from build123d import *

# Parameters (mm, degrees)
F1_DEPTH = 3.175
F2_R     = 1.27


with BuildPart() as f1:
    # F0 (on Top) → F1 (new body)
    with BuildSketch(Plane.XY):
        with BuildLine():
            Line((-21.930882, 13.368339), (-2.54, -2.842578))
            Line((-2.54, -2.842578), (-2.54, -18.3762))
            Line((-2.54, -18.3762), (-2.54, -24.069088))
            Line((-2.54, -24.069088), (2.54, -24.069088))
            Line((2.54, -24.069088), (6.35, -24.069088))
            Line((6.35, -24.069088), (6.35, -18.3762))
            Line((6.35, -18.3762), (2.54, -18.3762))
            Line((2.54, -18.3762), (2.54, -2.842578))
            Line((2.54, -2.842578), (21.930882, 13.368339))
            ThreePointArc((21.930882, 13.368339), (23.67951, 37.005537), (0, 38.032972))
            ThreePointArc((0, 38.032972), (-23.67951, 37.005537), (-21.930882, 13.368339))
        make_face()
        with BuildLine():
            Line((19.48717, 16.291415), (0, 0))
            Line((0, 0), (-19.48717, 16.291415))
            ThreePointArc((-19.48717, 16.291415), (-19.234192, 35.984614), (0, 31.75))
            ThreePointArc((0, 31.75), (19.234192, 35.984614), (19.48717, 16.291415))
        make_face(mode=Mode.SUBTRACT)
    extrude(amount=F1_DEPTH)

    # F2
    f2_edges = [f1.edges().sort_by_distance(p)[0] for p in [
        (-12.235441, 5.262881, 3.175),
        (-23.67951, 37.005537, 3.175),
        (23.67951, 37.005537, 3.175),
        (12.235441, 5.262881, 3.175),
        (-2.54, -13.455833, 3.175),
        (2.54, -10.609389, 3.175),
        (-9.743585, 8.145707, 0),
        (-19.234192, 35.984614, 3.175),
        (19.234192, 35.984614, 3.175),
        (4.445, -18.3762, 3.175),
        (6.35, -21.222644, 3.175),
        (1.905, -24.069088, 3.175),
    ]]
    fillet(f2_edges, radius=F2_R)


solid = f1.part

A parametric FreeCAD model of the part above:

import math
import FreeCAD as App
import Part
import Sketcher
Q = App.Units.Quantity


def edges_at(feature, points):
    """Names of the edges that pass closest to the given points."""
    edges = feature.Shape.Edges
    near = lambda p: min(range(len(edges)), key=lambda i: edges[i].distToShape(Part.Vertex(*p))[0])
    return sorted({f"Edge{near(p) + 1}" for p in points})

doc = App.newDocument("Part")
body = doc.addObject("PartDesign::Body", "Body")

sketch1 = body.newObject("Sketcher::SketchObject", "Sketch")
sketch1.AttachmentSupport = (doc.getObject("XY_Plane"), [""])
sketch1.MapMode = "FlatFace"
sketch1.addGeometry(Part.LineSegment(App.Vector(-21.9, 13.4, 0), App.Vector(-2.5, -2.8, 0)), False)
sketch1.addGeometry(Part.LineSegment(App.Vector(-2.5, -2.8, 0), App.Vector(-2.5, -24.1, 0)), False)
sketch1.addGeometry(Part.LineSegment(App.Vector(-2.5, -24.1, 0), App.Vector(6.3, -24.1, 0)), False)
sketch1.addGeometry(Part.LineSegment(App.Vector(6.3, -24.1, 0), App.Vector(6.3, -18.4, 0)), False)
sketch1.addGeometry(Part.LineSegment(App.Vector(6.3, -18.4, 0), App.Vector(2.5, -18.4, 0)), False)
sketch1.addGeometry(Part.LineSegment(App.Vector(2.5, -18.4, 0), App.Vector(2.5, -2.8, 0)), False)
sketch1.addGeometry(Part.LineSegment(App.Vector(2.5, -2.8, 0), App.Vector(21.9, 13.4, 0)), False)
sketch1.addGeometry(Part.ArcOfCircle(Part.Circle(App.Vector(11.3, 26, 0), App.Vector(0, 0, 1), 16.5), math.radians(-50), math.radians(133)), False)
sketch1.addGeometry(Part.ArcOfCircle(Part.Circle(App.Vector(-11.3, 26, 0), App.Vector(0, 0, 1), 16.5), math.radians(47), math.radians(230)), False)
sketch1.addGeometry(Part.ArcOfCircle(Part.Circle(App.Vector(11.3, 26, 0), App.Vector(0, 0, 1), 12.7), math.radians(-50), math.radians(153)), False)
sketch1.addGeometry(Part.LineSegment(App.Vector(19.5, 16.3, 0), App.Vector(0, 0, 0)), False)
sketch1.addGeometry(Part.LineSegment(App.Vector(0, 0, 0), App.Vector(-19.5, 16.3, 0)), False)
sketch1.addGeometry(Part.ArcOfCircle(Part.Circle(App.Vector(-11.3, 26, 0), App.Vector(0, 0, 1), 12.7), math.radians(27), math.radians(230)), False)
sketch1.addConstraint(Sketcher.Constraint("Coincident", 0, 2, 1, 1))
sketch1.addConstraint(Sketcher.Constraint("Coincident", 1, 2, 2, 1))
sketch1.addConstraint(Sketcher.Constraint("Coincident", 2, 2, 3, 1))
sketch1.addConstraint(Sketcher.Constraint("Coincident", 3, 2, 4, 1))
sketch1.addConstraint(Sketcher.Constraint("Coincident", 4, 2, 5, 1))
sketch1.addConstraint(Sketcher.Constraint("Coincident", 5, 2, 6, 1))
sketch1.addConstraint(Sketcher.Constraint("Tangent", 6, 2, 7, 1))
sketch1.addConstraint(Sketcher.Constraint("Coincident", 7, 2, 8, 1))
sketch1.addConstraint(Sketcher.Constraint("Tangent", 8, 2, 0, 1))
sketch1.addConstraint(Sketcher.Constraint("Tangent", 9, 1, 10, 1))
sketch1.addConstraint(Sketcher.Constraint("Coincident", 10, 2, 11, 1))
sketch1.addConstraint(Sketcher.Constraint("Tangent", 11, 2, 12, 2))
sketch1.addConstraint(Sketcher.Constraint("Coincident", 12, 1, 9, 2))
sketch1.addConstraint(Sketcher.Constraint("Vertical", 1))
sketch1.addConstraint(Sketcher.Constraint("Horizontal", 2))
sketch1.addConstraint(Sketcher.Constraint("Vertical", 3))
sketch1.addConstraint(Sketcher.Constraint("Horizontal", 4))
sketch1.addConstraint(Sketcher.Constraint("Vertical", 5))
sketch1.addConstraint(Sketcher.Constraint("Coincident", 10, 2, -1, 1))
sketch1.addConstraint(Sketcher.Constraint("Coincident", 9, 3, 7, 3))
sketch1.addConstraint(Sketcher.Constraint("Coincident", 12, 3, 8, 3))
sketch1.addConstraint(Sketcher.Constraint("Equal", 7, 8))
sketch1.addConstraint(Sketcher.Constraint("Equal", 9, 12))
sketch1.addConstraint(Sketcher.Constraint("Symmetric", 7, 3, 8, 3, -2))
sketch1.addConstraint(Sketcher.Constraint("Symmetric", 0, 2, 5, 2, -2))
sketch1.addConstraint(Sketcher.Constraint("Parallel", 6, 10))
sketch1.addConstraint(Sketcher.Constraint("Radius", 9, Q("0.5 in")))
sketch1.addConstraint(Sketcher.Constraint("Radius", 7, Q("0.65 in")))
sketch1.addConstraint(Sketcher.Constraint("Distance", 10, Q("1 in")))
sketch1.addConstraint(Sketcher.Constraint("DistanceX", 2, 1, 2, 2, Q("0.35 in")))
sketch1.addConstraint(Sketcher.Constraint("DistanceX", 4, 2, 4, 1, Q("0.15 in")))
sketch1.addConstraint(Sketcher.Constraint("DistanceY", -1, 1, 12, 1, Q("1.25 in")))
sketch1.addConstraint(Sketcher.Constraint("DistanceY", 1, 2, 1, 1, 21.22651))
sketch1.addConstraint(Sketcher.Constraint("DistanceY", 3, 2, -1, 1, 18.3762))
pad1 = body.newObject("PartDesign::Pad", "Pad")
pad1.Profile = sketch1
pad1.Length = Q("0.125 in")
doc.recompute()

fillet = body.newObject("PartDesign::Fillet", "Fillet")
fillet.Base = (pad1, edges_at(pad1, [
    (-12.235, 5.263, 3.175),
    (-23.68, 37.006, 3.175),
    (23.68, 37.006, 3.175),
    (12.235, 5.263, 3.175),
    (-2.54, -13.456, 3.175),
    (2.54, -10.609, 3.175),
    (-9.744, 8.146, 0),
    (-19.234, 35.985, 3.175),
    (19.234, 35.985, 3.175),
    (4.445, -18.376, 3.175),
    (6.35, -21.223, 3.175),
    (1.905, -24.069, 3.175),
]))
fillet.Radius = Q("0.05 in")

doc.recompute()
